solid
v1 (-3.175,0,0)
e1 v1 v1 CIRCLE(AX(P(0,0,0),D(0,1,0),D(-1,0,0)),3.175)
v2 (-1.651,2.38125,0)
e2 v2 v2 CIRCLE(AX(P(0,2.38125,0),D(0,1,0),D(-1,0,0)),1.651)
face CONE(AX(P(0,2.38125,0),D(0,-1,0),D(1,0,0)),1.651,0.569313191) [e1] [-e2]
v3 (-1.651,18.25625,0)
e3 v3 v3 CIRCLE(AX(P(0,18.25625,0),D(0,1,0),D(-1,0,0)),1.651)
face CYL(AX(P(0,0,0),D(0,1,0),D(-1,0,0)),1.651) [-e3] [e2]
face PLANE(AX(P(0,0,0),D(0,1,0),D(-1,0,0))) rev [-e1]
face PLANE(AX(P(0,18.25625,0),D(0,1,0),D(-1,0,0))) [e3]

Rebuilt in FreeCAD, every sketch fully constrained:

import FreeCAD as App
import Part
import Sketcher

V = App.Vector
Q = App.Units.Quantity

doc = App.newDocument("Part")
params = doc.addObject("Spreadsheet::Sheet", "Params")
for row, (alias, value) in enumerate([
    ("sketch1_width", "0.125 in"),
    ("sketch1_width2", "0.065 in"),
    ("sketch1_height", "0.71875 in"),
    ("sketch1_height2", "0.625 in"),
    ("revolution_angle", "360 deg"),
], start=1):
    params.set(f"A{row}", alias)
    params.set(f"B{row}", "=" + value)
    params.setAlias(f"B{row}", alias)

body = doc.addObject("PartDesign::Body", "Body")

sketch1 = doc.addObject("Sketcher::SketchObject", "Sketch")
body.addObject(sketch1)
sketch1.AttachmentSupport = (doc.XY_Plane, [""])
sketch1.MapMode = "FlatFace"
sketch1.addGeometry([
    Part.LineSegment(V(0, 18.3, 0), V(0, 0, 0)),
    Part.LineSegment(V(0, 0, 0), V(3.2, 0, 0)),
    Part.LineSegment(V(3.2, 0, 0), V(1.7, 2.4, 0)),
    Part.LineSegment(V(1.7, 2.4, 0), V(1.7, 18.3, 0)),
    Part.LineSegment(V(1.7, 18.3, 0), V(0, 18.3, 0)),
], False)
sketch1.addConstraint([
    Sketcher.Constraint("Coincident", 0, 2, 1, 1),
    Sketcher.Constraint("Coincident", 1, 2, 2, 1),
    Sketcher.Constraint("Coincident", 2, 2, 3, 1),
    Sketcher.Constraint("Coincident", 3, 2, 4, 1),
    Sketcher.Constraint("Coincident", 4, 2, 0, 1),
    Sketcher.Constraint("Vertical", 0),
    Sketcher.Constraint("Horizontal", 1),
    Sketcher.Constraint("Vertical", 3),
    Sketcher.Constraint("Horizontal", 4),
    Sketcher.Constraint("Coincident", 0, 2, -1, 1),
    Sketcher.Constraint("DistanceX", 1, 1, 1, 2, Q("0.125 in")),
    Sketcher.Constraint("DistanceX", 4, 2, 4, 1, Q("0.065 in")),
    Sketcher.Constraint("DistanceY", 0, 2, 0, 1, Q("0.71875 in")),
    Sketcher.Constraint("DistanceY", 3, 1, 3, 2, Q("0.625 in")),
])
sketch1.setExpression("Constraints[10]", "Params.sketch1_width")
sketch1.setExpression("Constraints[11]", "Params.sketch1_width2")
sketch1.setExpression("Constraints[12]", "Params.sketch1_height")
sketch1.setExpression("Constraints[13]", "Params.sketch1_height2")
revolution = doc.addObject("PartDesign::Revolution", "Revolution")
body.addObject(revolution)
revolution.Profile = sketch1
revolution.ReferenceAxis = (sketch1, ["V_Axis"])
revolution.setExpression("Angle", "Params.revolution_angle")

doc.recompute()
